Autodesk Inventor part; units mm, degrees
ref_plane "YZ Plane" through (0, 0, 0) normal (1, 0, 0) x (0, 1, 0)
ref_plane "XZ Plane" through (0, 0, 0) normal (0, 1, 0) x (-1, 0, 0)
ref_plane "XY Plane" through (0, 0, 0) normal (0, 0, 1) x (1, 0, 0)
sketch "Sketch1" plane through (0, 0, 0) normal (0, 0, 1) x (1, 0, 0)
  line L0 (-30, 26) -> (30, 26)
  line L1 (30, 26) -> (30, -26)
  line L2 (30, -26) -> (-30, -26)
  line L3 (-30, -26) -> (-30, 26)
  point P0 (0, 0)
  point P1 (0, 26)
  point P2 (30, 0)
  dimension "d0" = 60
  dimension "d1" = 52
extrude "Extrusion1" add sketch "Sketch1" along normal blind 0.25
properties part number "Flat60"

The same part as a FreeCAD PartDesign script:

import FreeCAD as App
import Part
import Sketcher

V = App.Vector

doc = App.newDocument("Part")
params = doc.addObject("Spreadsheet::Sheet", "Params")
for row, (alias, value) in enumerate([
    ("sketch1_width", "60 mm"),
    ("sketch1_height", "52 mm"),
    ("pad1_length", "0.25 mm"),
], start=1):
    params.set(f"A{row}", alias)
    params.set(f"B{row}", "=" + value)
    params.setAlias(f"B{row}", alias)

body = doc.addObject("PartDesign::Body", "Body")

sketch1 = body.newObject("Sketcher::SketchObject", "Sketch")
sketch1.AttachmentSupport = (doc.getObject("XY_Plane"), [""])
sketch1.MapMode = "FlatFace"
sketch1.addGeometry(Part.LineSegment(V(30, 26, 0), V(-30, 26, 0)), False)
sketch1.addGeometry(Part.LineSegment(V(-30, 26, 0), V(-30, -26, 0)), False)
sketch1.addGeometry(Part.LineSegment(V(-30, -26, 0), V(30, -26, 0)), False)
sketch1.addGeometry(Part.LineSegment(V(30, -26, 0), V(30, 26, 0)), False)
sketch1.addConstraint(Sketcher.Constraint("Coincident", 0, 2, 1, 1))
sketch1.addConstraint(Sketcher.Constraint("Coincident", 1, 2, 2, 1))
sketch1.addConstraint(Sketcher.Constraint("Coincident", 2, 2, 3, 1))
sketch1.addConstraint(Sketcher.Constraint("Coincident", 3, 2, 0, 1))
sketch1.addConstraint(Sketcher.Constraint("Horizontal", 0))
sketch1.addConstraint(Sketcher.Constraint("Vertical", 1))
sketch1.addConstraint(Sketcher.Constraint("Horizontal", 2))
sketch1.addConstraint(Sketcher.Constraint("Vertical", 3))
sketch1.addConstraint(Sketcher.Constraint("Symmetric", 0, 2, 2, 2, -1, 1))
sketch1.addConstraint(Sketcher.Constraint("DistanceX", 0, 2, 0, 1, 60.0))
sketch1.addConstraint(Sketcher.Constraint("DistanceY", 1, 2, 1, 1, 52.0))
sketch1.setExpression("Constraints[9]", "Params.sketch1_width")
sketch1.setExpression("Constraints[10]", "Params.sketch1_height")
pad1 = body.newObject("PartDesign::Pad", "Pad")
pad1.Profile = sketch1
pad1.setExpression("Length", "Params.pad1_length")

doc.recompute()
